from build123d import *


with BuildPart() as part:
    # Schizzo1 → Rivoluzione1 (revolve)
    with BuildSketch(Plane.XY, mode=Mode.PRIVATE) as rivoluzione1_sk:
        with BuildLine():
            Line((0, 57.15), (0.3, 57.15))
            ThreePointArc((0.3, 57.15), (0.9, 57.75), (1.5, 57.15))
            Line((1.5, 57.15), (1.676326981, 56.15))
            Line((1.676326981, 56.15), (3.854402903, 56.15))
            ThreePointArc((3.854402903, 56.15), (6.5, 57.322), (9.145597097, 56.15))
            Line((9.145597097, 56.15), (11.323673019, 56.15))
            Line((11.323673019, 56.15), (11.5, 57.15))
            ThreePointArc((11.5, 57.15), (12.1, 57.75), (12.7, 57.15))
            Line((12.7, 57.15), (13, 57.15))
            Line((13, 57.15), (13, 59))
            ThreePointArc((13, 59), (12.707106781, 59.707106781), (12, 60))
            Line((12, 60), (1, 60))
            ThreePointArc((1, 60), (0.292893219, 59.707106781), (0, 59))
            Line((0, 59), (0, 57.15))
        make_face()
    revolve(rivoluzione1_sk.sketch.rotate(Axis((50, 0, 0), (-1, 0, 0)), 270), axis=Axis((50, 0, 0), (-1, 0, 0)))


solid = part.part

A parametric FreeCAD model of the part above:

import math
import FreeCAD as App
import Part
import Sketcher
from FreeCAD import Vector
Q = App.Units.Quantity

doc = App.newDocument("Part")
params = doc.addObject("Spreadsheet::Sheet", "Params")
for row, (alias, value) in enumerate([
    ("sketch1_radius", "1 mm"),
    ("sketch1_radius2", "0.6 mm"),
    ("sketch1_width", "11 mm"),
    ("sketch1_width2", "0.3 mm"),
    ("sketch1_height", "1.85 mm"),
    ("revolution_angle", "360 deg"),
], start=1):
    params.set(f"A{row}", alias)
    params.set(f"B{row}", "=" + value)
    params.setAlias(f"B{row}", alias)

body = doc.addObject("PartDesign::Body", "Body")

# Sketch on XY plane
sketch1 = body.newObject("Sketcher::SketchObject", "Sketch")
sketch1.AttachmentSupport = (doc.getObject("XY_Plane"), [""])
sketch1.MapMode = "FlatFace"
sketch1.addGeometry([
    Part.LineSegment(Vector(0, 57.15, 0), Vector(0.3, 57.15, 0)),  # 0
    Part.ArcOfCircle(Part.Circle(Vector(0.9, 57.15, 0), Vector(0, 0, 1), 0.6), math.radians(0), math.radians(180)),  # 1
    Part.LineSegment(Vector(1.5, 57.15, 0), Vector(1.68, 56.15, 0)),  # 2
    Part.LineSegment(Vector(1.68, 56.15, 0), Vector(3.85, 56.15, 0)),  # 3
    Part.ArcOfCircle(Part.Circle(Vector(6.5, 53.75, 0), Vector(0, 0, 1), 3.57), math.radians(42), math.radians(138)),  # 4
    Part.LineSegment(Vector(9.15, 56.15, 0), Vector(11.32, 56.15, 0)),  # 5
    Part.LineSegment(Vector(11.32, 56.15, 0), Vector(11.5, 57.15, 0)),  # 6
    Part.ArcOfCircle(Part.Circle(Vector(12.1, 57.15, 0), Vector(0, 0, 1), 0.6), math.radians(0), math.radians(180)),  # 7
    Part.LineSegment(Vector(12.7, 57.15, 0), Vector(13, 57.15, 0)),  # 8
    Part.LineSegment(Vector(13, 57.15, 0), Vector(13, 59, 0)),  # 9
    Part.ArcOfCircle(Part.Circle(Vector(12, 59, 0), Vector(0, 0, 1), 1), math.radians(0), math.radians(90)),  # 10
    Part.LineSegment(Vector(12, 60, 0), Vector(1, 60, 0)),  # 11
    Part.ArcOfCircle(Part.Circle(Vector(1, 59, 0), Vector(0, 0, 1), 1), math.radians(90), math.radians(180)),  # 12
    Part.LineSegment(Vector(0, 59, 0), Vector(0, 57.15, 0)),  # 13
], False)
sketch1.addConstraint([
    Sketcher.Constraint("Coincident", 0, 2, 1, 2),
    Sketcher.Constraint("Coincident", 1, 1, 2, 1),
    Sketcher.Constraint("Coincident", 2, 2, 3, 1),
    Sketcher.Constraint("Coincident", 3, 2, 4, 2),
    Sketcher.Constraint("Coincident", 4, 1, 5, 1),
    Sketcher.Constraint("Coincident", 5, 2, 6, 1),
    Sketcher.Constraint("Coincident", 6, 2, 7, 2),
    Sketcher.Constraint("Coincident", 7, 1, 8, 1),
    Sketcher.Constraint("Coincident", 8, 2, 9, 1),
    Sketcher.Constraint("Tangent", 9, 2, 10, 1),
    Sketcher.Constraint("Tangent", 10, 2, 11, 1),
    Sketcher.Constraint("Tangent", 11, 2, 12, 1),
    Sketcher.Constraint("Tangent", 12, 2, 13, 1),
    Sketcher.Constraint("Coincident", 13, 2, 0, 1),
    Sketcher.Constraint("Horizontal", 0),
    Sketcher.Constraint("Horizontal", 3),
    Sketcher.Constraint("Horizontal", 5),
    Sketcher.Constraint("Horizontal", 8),
    Sketcher.Constraint("Vertical", 9),
    Sketcher.Constraint("Horizontal", 11),
    Sketcher.Constraint("Vertical", 13),
    Sketcher.Constraint("Equal", 1, 7),
    Sketcher.Constraint("Equal", 10, 12),
    Sketcher.Constraint("PointOnObject", 12, 2, -2),
    Sketcher.Constraint("Horizontal", 1, 3, 7, 3),
    Sketcher.Constraint("Horizontal", 7, 3, 0, 2),
    Sketcher.Constraint("Horizontal", 0, 2, 1, 1),
    Sketcher.Constraint("Horizontal", 3, 2, 4, 1),
    Sketcher.Constraint("Horizontal", 1, 1, 6, 2),
    Sketcher.Constraint("Horizontal", 6, 2, 7, 1),
    Sketcher.Constraint("Equal", 3, 5),
    Sketcher.Constraint("Equal", 0, 8),
    Sketcher.Constraint("Equal", 2, 6),
    Sketcher.Constraint("Radius", 10, Q("1 mm")),
    Sketcher.Constraint("Radius", 1, Q("0.6 mm")),
    Sketcher.Constraint("DistanceX", 11, 2, 11, 1, Q("11 mm")),
    Sketcher.Constraint("Angle", 2, Q("-80 deg")),
    Sketcher.Constraint("DistanceX", 0, 1, 0, 2, Q("0.3 mm")),
    Sketcher.Constraint("DistanceY", -1, 1, 10, 3, Q("59 mm")),
    Sketcher.Constraint("Radius", 4, Q("3.572 mm")),
    Sketcher.Constraint("DistanceY", 2, 2, 1, 1, Q("1 mm")),
    Sketcher.Constraint("DistanceY", 9, 1, 9, 2, Q("1.85 mm")),
    Sketcher.Constraint("DistanceY", 4, 3, 1, 3, Q("3.4 mm")),
])
sketch1.setExpression("Constraints[33]", "Params.sketch1_radius")
sketch1.setExpression("Constraints[34]", "Params.sketch1_radius2")
sketch1.setExpression("Constraints[35]", "Params.sketch1_width")
sketch1.setExpression("Constraints[37]", "Params.sketch1_width2")
sketch1.setExpression("Constraints[41]", "Params.sketch1_height")
revolution = body.newObject("PartDesign::Revolution", "Revolution")
revolution.Profile = sketch1
revolution.ReferenceAxis = (sketch1, ["H_Axis"])
revolution.setExpression("Angle", "Params.revolution_angle")

doc.recompute()
